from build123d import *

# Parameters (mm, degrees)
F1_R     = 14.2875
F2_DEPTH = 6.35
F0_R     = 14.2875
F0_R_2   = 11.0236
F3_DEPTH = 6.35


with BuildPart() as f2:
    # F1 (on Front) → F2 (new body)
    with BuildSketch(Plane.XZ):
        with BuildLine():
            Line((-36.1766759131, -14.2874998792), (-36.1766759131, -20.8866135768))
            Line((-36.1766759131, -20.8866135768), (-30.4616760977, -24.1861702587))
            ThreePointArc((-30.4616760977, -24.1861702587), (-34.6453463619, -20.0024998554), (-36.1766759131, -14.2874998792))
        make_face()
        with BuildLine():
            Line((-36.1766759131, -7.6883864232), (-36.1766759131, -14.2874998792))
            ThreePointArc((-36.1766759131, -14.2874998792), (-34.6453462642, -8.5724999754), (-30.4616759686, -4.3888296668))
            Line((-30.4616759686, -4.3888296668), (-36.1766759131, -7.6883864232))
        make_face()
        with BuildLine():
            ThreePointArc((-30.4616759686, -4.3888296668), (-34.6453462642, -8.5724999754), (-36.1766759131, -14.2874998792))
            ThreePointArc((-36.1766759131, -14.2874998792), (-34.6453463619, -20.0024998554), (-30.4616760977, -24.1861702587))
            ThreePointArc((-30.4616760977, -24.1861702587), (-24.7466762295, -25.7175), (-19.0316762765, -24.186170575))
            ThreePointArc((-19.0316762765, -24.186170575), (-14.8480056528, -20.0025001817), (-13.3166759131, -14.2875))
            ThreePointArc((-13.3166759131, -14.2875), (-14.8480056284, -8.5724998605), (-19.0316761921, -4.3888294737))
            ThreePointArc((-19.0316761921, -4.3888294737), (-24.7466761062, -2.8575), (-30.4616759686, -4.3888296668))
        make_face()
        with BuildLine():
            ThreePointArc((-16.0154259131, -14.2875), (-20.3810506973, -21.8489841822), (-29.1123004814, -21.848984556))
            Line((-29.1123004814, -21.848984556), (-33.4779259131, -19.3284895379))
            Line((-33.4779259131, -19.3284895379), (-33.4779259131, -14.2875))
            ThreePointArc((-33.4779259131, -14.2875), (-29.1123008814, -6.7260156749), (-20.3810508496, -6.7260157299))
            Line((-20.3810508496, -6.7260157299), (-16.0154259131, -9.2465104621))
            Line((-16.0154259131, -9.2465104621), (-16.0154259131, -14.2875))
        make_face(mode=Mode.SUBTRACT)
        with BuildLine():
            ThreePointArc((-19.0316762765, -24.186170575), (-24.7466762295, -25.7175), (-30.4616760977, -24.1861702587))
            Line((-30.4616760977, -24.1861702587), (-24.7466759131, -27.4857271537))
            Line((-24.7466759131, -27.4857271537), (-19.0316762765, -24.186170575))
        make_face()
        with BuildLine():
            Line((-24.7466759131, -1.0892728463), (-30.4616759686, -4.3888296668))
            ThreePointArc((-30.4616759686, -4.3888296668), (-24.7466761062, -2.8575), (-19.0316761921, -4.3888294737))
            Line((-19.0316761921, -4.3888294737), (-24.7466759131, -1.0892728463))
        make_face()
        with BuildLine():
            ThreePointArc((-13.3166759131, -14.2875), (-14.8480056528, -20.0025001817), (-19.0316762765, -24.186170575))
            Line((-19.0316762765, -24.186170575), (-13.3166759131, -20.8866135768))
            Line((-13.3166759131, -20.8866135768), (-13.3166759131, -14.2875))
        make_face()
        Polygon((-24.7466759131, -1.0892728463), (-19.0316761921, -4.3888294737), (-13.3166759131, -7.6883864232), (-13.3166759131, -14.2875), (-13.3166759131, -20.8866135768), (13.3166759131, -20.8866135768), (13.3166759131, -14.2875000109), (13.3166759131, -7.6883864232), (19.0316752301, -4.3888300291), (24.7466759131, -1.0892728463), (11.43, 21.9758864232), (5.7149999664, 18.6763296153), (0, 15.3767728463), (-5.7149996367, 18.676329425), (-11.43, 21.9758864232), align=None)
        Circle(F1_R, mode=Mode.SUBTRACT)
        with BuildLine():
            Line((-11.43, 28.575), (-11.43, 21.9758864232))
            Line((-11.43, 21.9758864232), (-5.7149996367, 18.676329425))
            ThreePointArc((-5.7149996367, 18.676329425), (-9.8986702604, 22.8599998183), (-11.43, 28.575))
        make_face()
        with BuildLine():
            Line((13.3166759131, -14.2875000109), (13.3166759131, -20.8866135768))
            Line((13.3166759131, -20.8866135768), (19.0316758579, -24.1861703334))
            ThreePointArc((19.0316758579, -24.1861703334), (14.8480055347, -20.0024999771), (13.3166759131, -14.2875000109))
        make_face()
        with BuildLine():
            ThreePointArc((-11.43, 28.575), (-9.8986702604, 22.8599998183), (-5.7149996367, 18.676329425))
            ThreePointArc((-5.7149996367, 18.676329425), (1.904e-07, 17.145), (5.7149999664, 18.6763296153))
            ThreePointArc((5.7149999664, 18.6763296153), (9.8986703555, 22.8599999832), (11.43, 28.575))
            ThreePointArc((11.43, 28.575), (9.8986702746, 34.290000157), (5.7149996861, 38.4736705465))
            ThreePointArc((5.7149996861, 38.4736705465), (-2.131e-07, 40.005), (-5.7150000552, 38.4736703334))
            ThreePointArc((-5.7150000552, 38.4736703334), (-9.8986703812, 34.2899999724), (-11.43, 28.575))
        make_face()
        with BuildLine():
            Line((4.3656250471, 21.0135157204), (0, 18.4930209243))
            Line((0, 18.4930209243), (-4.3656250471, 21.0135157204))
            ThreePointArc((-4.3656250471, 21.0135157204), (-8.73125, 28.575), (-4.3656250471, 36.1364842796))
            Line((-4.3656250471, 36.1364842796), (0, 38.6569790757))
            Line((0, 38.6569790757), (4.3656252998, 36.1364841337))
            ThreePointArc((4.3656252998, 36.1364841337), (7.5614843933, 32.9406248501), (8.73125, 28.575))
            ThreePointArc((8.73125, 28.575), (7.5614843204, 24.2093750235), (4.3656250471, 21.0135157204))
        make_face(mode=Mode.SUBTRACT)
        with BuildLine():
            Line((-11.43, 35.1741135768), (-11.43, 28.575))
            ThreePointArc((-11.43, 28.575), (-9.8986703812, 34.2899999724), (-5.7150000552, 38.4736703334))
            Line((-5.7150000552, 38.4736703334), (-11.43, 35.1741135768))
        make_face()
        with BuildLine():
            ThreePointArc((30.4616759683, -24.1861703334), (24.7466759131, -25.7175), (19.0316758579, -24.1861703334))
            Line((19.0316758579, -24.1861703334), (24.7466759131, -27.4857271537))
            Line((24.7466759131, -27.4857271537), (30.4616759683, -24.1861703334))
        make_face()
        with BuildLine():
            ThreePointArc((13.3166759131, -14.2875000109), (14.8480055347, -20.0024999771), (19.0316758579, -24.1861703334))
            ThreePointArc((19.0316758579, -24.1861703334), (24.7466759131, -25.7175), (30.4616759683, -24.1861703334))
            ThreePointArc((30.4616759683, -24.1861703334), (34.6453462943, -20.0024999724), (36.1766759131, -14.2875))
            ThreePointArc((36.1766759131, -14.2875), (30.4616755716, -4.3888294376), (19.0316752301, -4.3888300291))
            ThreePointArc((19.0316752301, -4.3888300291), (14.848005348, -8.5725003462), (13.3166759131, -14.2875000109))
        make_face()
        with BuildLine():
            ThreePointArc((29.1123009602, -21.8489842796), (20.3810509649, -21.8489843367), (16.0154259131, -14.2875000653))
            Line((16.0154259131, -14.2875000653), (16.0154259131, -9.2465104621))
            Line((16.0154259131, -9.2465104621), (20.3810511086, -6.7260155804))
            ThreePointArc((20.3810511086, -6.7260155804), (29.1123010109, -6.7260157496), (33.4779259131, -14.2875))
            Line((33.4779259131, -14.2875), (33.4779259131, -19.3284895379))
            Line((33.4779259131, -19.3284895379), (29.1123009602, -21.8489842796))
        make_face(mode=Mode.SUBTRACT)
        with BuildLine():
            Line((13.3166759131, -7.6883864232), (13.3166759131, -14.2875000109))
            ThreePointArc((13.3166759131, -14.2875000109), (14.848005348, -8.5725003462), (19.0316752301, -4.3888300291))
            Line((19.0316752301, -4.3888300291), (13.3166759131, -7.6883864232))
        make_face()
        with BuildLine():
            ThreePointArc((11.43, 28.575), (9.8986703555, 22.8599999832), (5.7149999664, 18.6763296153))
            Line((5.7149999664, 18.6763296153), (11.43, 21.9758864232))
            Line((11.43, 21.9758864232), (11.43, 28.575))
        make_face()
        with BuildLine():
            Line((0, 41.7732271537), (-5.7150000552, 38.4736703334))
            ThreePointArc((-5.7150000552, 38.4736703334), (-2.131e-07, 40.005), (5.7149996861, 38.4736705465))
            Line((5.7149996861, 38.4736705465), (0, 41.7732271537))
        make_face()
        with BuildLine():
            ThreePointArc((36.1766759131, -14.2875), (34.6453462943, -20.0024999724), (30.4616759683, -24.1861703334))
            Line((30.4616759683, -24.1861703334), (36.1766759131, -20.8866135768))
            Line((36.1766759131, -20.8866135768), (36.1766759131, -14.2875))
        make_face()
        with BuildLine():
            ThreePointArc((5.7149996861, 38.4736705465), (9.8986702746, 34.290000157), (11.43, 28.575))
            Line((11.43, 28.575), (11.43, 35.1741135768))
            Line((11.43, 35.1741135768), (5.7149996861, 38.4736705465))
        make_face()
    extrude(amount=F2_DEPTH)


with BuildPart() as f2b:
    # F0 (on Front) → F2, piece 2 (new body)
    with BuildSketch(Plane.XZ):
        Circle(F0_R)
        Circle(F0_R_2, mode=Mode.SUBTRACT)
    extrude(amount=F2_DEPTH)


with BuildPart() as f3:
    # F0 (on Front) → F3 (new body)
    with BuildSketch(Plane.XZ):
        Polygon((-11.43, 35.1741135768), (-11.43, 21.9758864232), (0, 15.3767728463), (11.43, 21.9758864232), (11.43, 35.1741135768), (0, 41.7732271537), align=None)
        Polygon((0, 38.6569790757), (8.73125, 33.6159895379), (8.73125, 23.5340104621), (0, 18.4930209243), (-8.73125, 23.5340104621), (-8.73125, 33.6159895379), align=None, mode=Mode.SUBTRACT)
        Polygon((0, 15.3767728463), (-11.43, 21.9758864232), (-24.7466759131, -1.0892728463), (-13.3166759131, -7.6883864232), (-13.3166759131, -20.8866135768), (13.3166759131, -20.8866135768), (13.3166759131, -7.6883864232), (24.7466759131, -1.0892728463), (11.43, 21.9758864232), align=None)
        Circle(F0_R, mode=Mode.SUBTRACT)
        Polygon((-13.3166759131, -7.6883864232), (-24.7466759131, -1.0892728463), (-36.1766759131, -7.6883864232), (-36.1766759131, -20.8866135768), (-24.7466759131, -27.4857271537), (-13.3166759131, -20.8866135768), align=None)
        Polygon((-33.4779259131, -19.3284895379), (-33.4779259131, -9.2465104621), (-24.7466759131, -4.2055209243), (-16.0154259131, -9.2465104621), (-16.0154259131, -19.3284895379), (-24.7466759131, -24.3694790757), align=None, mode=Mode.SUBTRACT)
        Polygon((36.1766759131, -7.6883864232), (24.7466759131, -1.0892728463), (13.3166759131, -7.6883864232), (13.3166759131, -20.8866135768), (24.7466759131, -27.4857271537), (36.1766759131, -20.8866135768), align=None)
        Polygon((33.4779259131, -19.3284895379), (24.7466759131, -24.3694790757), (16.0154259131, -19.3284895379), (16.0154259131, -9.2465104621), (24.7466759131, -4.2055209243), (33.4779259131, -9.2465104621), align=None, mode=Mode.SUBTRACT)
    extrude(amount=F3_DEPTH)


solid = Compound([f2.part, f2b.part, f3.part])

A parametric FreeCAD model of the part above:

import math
import FreeCAD as App
import Part
import Sketcher
Q = App.Units.Quantity


def add_polygon(sketch, points):
    """Adds a closed chain of lines whose ends are joined by coincident constraints."""
    first, n = sketch.GeometryCount, len(points)
    for a, b in zip(points, points[1:] + points[:1]):
        sketch.addGeometry(Part.LineSegment(App.Vector(*a, 0), App.Vector(*b, 0)), False)
    for i in range(n):
        sketch.addConstraint(Sketcher.Constraint("Coincident", first + i, 2, first + (i + 1) % n, 1))

doc = App.newDocument("Part")
body = doc.addObject("PartDesign::Body", "Body")

# Sketch on XZ plane
sketch1 = body.newObject("Sketcher::SketchObject", "Sketch")
sketch1.AttachmentSupport = (doc.getObject("XZ_Plane"), [""])
sketch1.MapMode = "FlatFace"
sketch1.addGeometry([
    Part.LineSegment(App.Vector(24.746676, -1.089273, 0), App.Vector(11.43, 21.975886, 0)),  # 0
    Part.LineSegment(App.Vector(11.43, 21.975886, 0), App.Vector(11.43, 35.174114, 0)),  # 1
    Part.LineSegment(App.Vector(11.43, 35.174114, 0), App.Vector(5.715, 38.473671, 0)),  # 2
    Part.LineSegment(App.Vector(5.715, 38.473671, 0), App.Vector(0, 41.773227, 0)),  # 3
    Part.LineSegment(App.Vector(0, 41.773227, 0), App.Vector(-5.715, 38.47367, 0)),  # 4
    Part.LineSegment(App.Vector(-5.715, 38.47367, 0), App.Vector(-11.43, 35.174114, 0)),  # 5
    Part.LineSegment(App.Vector(-11.43, 35.174114, 0), App.Vector(-11.43, 21.975886, 0)),  # 6
    Part.LineSegment(App.Vector(-11.43, 21.975886, 0), App.Vector(-24.746676, -1.089273, 0)),  # 7
    Part.LineSegment(App.Vector(-24.746676, -1.089273, 0), App.Vector(-30.461676, -4.38883, 0)),  # 8
    Part.LineSegment(App.Vector(-30.461676, -4.38883, 0), App.Vector(-36.176676, -7.688386, 0)),  # 9
    Part.LineSegment(App.Vector(-36.176676, -7.688386, 0), App.Vector(-36.176676, -20.886614, 0)),  # 10
    Part.LineSegment(App.Vector(-36.176676, -20.886614, 0), App.Vector(-30.461676, -24.18617, 0)),  # 11
    Part.LineSegment(App.Vector(-30.461676, -24.18617, 0), App.Vector(-24.746676, -27.485727, 0)),  # 12
    Part.LineSegment(App.Vector(-24.746676, -27.485727, 0), App.Vector(-19.031676, -24.186171, 0)),  # 13
    Part.LineSegment(App.Vector(-19.031676, -24.186171, 0), App.Vector(-13.316676, -20.886614, 0)),  # 14
    Part.LineSegment(App.Vector(-13.316676, -20.886614, 0), App.Vector(13.316676, -20.886614, 0)),  # 15
    Part.LineSegment(App.Vector(13.316676, -20.886614, 0), App.Vector(19.031676, -24.18617, 0)),  # 16
    Part.LineSegment(App.Vector(19.031676, -24.18617, 0), App.Vector(24.746676, -27.485727, 0)),  # 17
    Part.LineSegment(App.Vector(24.746676, -27.485727, 0), App.Vector(30.461676, -24.18617, 0)),  # 18
    Part.LineSegment(App.Vector(30.461676, -24.18617, 0), App.Vector(36.176676, -20.886614, 0)),  # 19
    Part.LineSegment(App.Vector(36.176676, -20.886614, 0), App.Vector(36.176676, -14.2875, 0)),  # 20
    Part.ArcOfCircle(Part.Circle(App.Vector(24.746676, -14.2875, 0), App.Vector(0, 0, 1), 11.43), math.radians(0), math.radians(120.000004)),  # 21
    Part.LineSegment(App.Vector(19.031675, -4.38883, 0), App.Vector(24.746676, -1.089273, 0)),  # 22
    Part.LineSegment(App.Vector(-16.015426, -9.24651, 0), App.Vector(-16.015426, -14.2875, 0)),  # 23
    Part.ArcOfCircle(Part.Circle(App.Vector(-24.746676, -14.2875, 0), App.Vector(0, 0, 1), 8.73125), math.radians(-119.999997), math.radians(0)),  # 24
    Part.LineSegment(App.Vector(-29.1123, -21.848985, 0), App.Vector(-33.477926, -19.32849, 0)),  # 25
    Part.LineSegment(App.Vector(-33.477926, -19.32849, 0), App.Vector(-33.477926, -14.2875, 0)),  # 26
    Part.ArcOfCircle(Part.Circle(App.Vector(-24.746676, -14.2875, 0), App.Vector(0, 0, 1), 8.73125), math.radians(60), math.radians(180)),  # 27
    Part.LineSegment(App.Vector(-20.381051, -6.726016, 0), App.Vector(-16.015426, -9.24651, 0)),  # 28
    Part.ArcOfCircle(Part.Circle(App.Vector(-24.746676, -14.2875, 0), App.Vector(0, 0, 1), 11.43), math.radians(0), math.radians(60.000002)),  # 29
    Part.LineSegment(App.Vector(-19.031676, -4.388829, 0), App.Vector(-13.316676, -7.688386, 0)),  # 30
    Part.LineSegment(App.Vector(-13.316676, -7.688386, 0), App.Vector(-13.316676, -14.2875, 0)),  # 31
    Part.Circle(App.Vector(0, 0, 0), App.Vector(0, 0, 1), 14.2875),  # 32
    Part.LineSegment(App.Vector(33.477926, -19.32849, 0), App.Vector(29.112301, -21.848984, 0)),  # 33
    Part.ArcOfCircle(Part.Circle(App.Vector(24.746676, -14.2875, 0), App.Vector(0, 0, 1), 8.73125), math.radians(-180), math.radians(-60)),  # 34
    Part.LineSegment(App.Vector(16.015426, -14.2875, 0), App.Vector(16.015426, -9.24651, 0)),  # 35
    Part.LineSegment(App.Vector(16.015426, -9.24651, 0), App.Vector(20.381051, -6.726016, 0)),  # 36
    Part.ArcOfCircle(Part.Circle(App.Vector(24.746676, -14.2875, 0), App.Vector(0, 0, 1), 8.73125), math.radians(0), math.radians(119.999999)),  # 37
    Part.LineSegment(App.Vector(33.477926, -14.2875, 0), App.Vector(33.477926, -19.32849, 0)),  # 38
    Part.ArcOfCircle(Part.Circle(App.Vector(0, 28.575, 0), App.Vector(0, 0, 1), 8.73125), math.radians(-60), math.radians(59.999998)),  # 39
    Part.LineSegment(App.Vector(4.365625, 21.013516, 0), App.Vector(0, 18.493021, 0)),  # 40
    Part.LineSegment(App.Vector(0, 18.493021, 0), App.Vector(-4.365625, 21.013516, 0)),  # 41
    Part.ArcOfCircle(Part.Circle(App.Vector(0, 28.575, 0), App.Vector(0, 0, 1), 8.73125), math.radians(120), math.radians(240)),  # 42
    Part.LineSegment(App.Vector(-4.365625, 36.136484, 0), App.Vector(0, 38.656979, 0)),  # 43
    Part.LineSegment(App.Vector(0, 38.656979, 0), App.Vector(4.365625, 36.136484, 0)),  # 44
    Part.ArcOfCircle(Part.Circle(App.Vector(0, 28.575, 0), App.Vector(0, 0, 1), 11.43), math.radians(-119.999998), math.radians(-60)),  # 45
    Part.LineSegment(App.Vector(5.715, 18.67633, 0), App.Vector(0, 15.376773, 0)),  # 46
    Part.LineSegment(App.Vector(0, 15.376773, 0), App.Vector(-5.715, 18.676329, 0)),  # 47
], False)
sketch1.addConstraint([
    Sketcher.Constraint("Coincident", 0, 2, 1, 1),
    Sketcher.Constraint("Coincident", 1, 2, 2, 1),
    Sketcher.Constraint("Coincident", 2, 2, 3, 1),
    Sketcher.Constraint("Coincident", 3, 2, 4, 1),
    Sketcher.Constraint("Coincident", 4, 2, 5, 1),
    Sketcher.Constraint("Coincident", 5, 2, 6, 1),
    Sketcher.Constraint("Coincident", 6, 2, 7, 1),
    Sketcher.Constraint("Coincident", 7, 2, 8, 1),
    Sketcher.Constraint("Coincident", 8, 2, 9, 1),
    Sketcher.Constraint("Coincident", 9, 2, 10, 1),
    Sketcher.Constraint("Coincident", 10, 2, 11, 1),
    Sketcher.Constraint("Coincident", 11, 2, 12, 1),
    Sketcher.Constraint("Coincident", 12, 2, 13, 1),
    Sketcher.Constraint("Coincident", 13, 2, 14, 1),
    Sketcher.Constraint("Coincident", 14, 2, 15, 1),
    Sketcher.Constraint("Coincident", 15, 2, 16, 1),
    Sketcher.Constraint("Coincident", 16, 2, 17, 1),
    Sketcher.Constraint("Coincident", 17, 2, 18, 1),
    Sketcher.Constraint("Coincident", 18, 2, 19, 1),
    Sketcher.Constraint("Coincident", 19, 2, 20, 1),
    Sketcher.Constraint("Tangent", 20, 2, 21, 1),
    Sketcher.Constraint("Tangent", 21, 2, 22, 1),
    Sketcher.Constraint("Coincident", 22, 2, 0, 1),
    Sketcher.Constraint("Tangent", 23, 2, 24, 2),
    Sketcher.Constraint("Tangent", 24, 1, 25, 1),
    Sketcher.Constraint("Coincident", 25, 2, 26, 1),
    Sketcher.Constraint("Tangent", 26, 2, 27, 2),
    Sketcher.Constraint("Tangent", 27, 1, 28, 1),
    Sketcher.Constraint("Coincident", 28, 2, 23, 1),
    Sketcher.Constraint("Tangent", 29, 2, 30, 1),
    Sketcher.Constraint("Coincident", 30, 2, 31, 1),
    Sketcher.Constraint("Tangent", 31, 2, 29, 1),
    Sketcher.Constraint("Tangent", 33, 2, 34, 2),
    Sketcher.Constraint("Tangent", 34, 1, 35, 1),
    Sketcher.Constraint("Coincident", 35, 2, 36, 1),
    Sketcher.Constraint("Tangent", 36, 2, 37, 2),
    Sketcher.Constraint("Tangent", 37, 1, 38, 1),
    Sketcher.Constraint("Coincident", 38, 2, 33, 1),
    Sketcher.Constraint("Tangent", 39, 1, 40, 1),
    Sketcher.Constraint("Coincident", 40, 2, 41, 1),
    Sketcher.Constraint("Tangent", 41, 2, 42, 2),
    Sketcher.Constraint("Tangent", 42, 1, 43, 1),
    Sketcher.Constraint("Coincident", 43, 2, 44, 1),
    Sketcher.Constraint("Tangent", 44, 2, 39, 2),
    Sketcher.Constraint("Tangent", 45, 2, 46, 1),
    Sketcher.Constraint("Coincident", 46, 2, 47, 1),
    Sketcher.Constraint("Tangent", 47, 2, 45, 1),
    Sketcher.Constraint("Vertical", 1),
    Sketcher.Constraint("Vertical", 6),
    Sketcher.Constraint("Vertical", 10),
    Sketcher.Constraint("Horizontal", 15),
    Sketcher.Constraint("Vertical", 20),
    Sketcher.Constraint("Vertical", 23),
    Sketcher.Constraint("Vertical", 26),
    Sketcher.Constraint("Vertical", 31),
    Sketcher.Constraint("Vertical", 35),
    Sketcher.Constraint("Vertical", 38),
    Sketcher.Constraint("Coincident", 32, 3, -1, 1),
    Sketcher.Constraint("Coincident", 27, 3, 24, 3),
    Sketcher.Constraint("Coincident", 29, 3, 24, 3),
    Sketcher.Constraint("Coincident", 34, 3, 21, 3),
    Sketcher.Constraint("Coincident", 37, 3, 21, 3),
    Sketcher.Constraint("Coincident", 42, 3, 39, 3),
    Sketcher.Constraint("Coincident", 45, 3, 39, 3),
    Sketcher.Constraint("Equal", 24, 27),
    Sketcher.Constraint("Equal", 21, 29),
    Sketcher.Constraint("Equal", 27, 34),
    Sketcher.Constraint("Equal", 34, 37),
    Sketcher.Constraint("Equal", 37, 39),
    Sketcher.Constraint("Equal", 39, 42),
    Sketcher.Constraint("Equal", 29, 45),
    Sketcher.Constraint("Symmetric", 21, 3, 24, 3, -2),
    Sketcher.Constraint("Symmetric", 2, 2, 4, 2, -2),
    Sketcher.Constraint("Symmetric", 1, 2, 5, 2, -2),
    Sketcher.Constraint("Symmetric", 13, 2, 16, 2, -2),
    Sketcher.Constraint("Symmetric", 12, 2, 17, 2, -2),
    Sketcher.Constraint("Symmetric", 11, 2, 18, 2, -2),
    Sketcher.Constraint("Symmetric", 10, 2, 19, 2, -2),
    Sketcher.Constraint("Symmetric", 7, 2, 22, 2, -2),
    Sketcher.Constraint("Symmetric", 39, 1, 41, 2, -2),
    Sketcher.Constraint("PointOnObject", 3, 2, -2),
    Sketcher.Constraint("PointOnObject", 43, 2, -2),
    Sketcher.Constraint("PointOnObject", 46, 2, -2),
    Sketcher.Constraint("Parallel", 2, 3),
    Sketcher.Constraint("Perpendicular", 0, 4),
    Sketcher.Constraint("Perpendicular", 3, 7),
    Sketcher.Constraint("Parallel", 5, 8),
    Sketcher.Constraint("Parallel", 8, 9),
    Sketcher.Constraint("Perpendicular", 7, 11),
    Sketcher.Constraint("Parallel", 11, 12),
    Sketcher.Constraint("Parallel", 9, 13),
    Sketcher.Constraint("Parallel", 13, 14),
    Sketcher.Constraint("Parallel", 12, 16),
    Sketcher.Constraint("Parallel", 19, 22),
    Sketcher.Constraint("Parallel", 17, 25),
    Sketcher.Constraint("Parallel", 25, 28),
    Sketcher.Constraint("Parallel", 28, 30),
    Sketcher.Constraint("Parallel", 22, 33),
    Sketcher.Constraint("Parallel", 33, 36),
    Sketcher.Constraint("Parallel", 36, 40),
    Sketcher.Constraint("Parallel", 40, 43),
    Sketcher.Constraint("Parallel", 43, 46),
    Sketcher.Constraint("Horizontal", 11, 2, 13, 2),
    Sketcher.Constraint("Horizontal", 10, 2, 14, 2),
    Sketcher.Constraint("Horizontal", 8, 2, 21, 2),
    Sketcher.Constraint("Horizontal", 9, 2, 30, 2),
    Sketcher.Constraint("Vertical", 8, 2, 11, 2),
    Sketcher.Constraint("Vertical", 7, 2, 12, 2),
    Sketcher.Constraint("Vertical", 2, 2, 45, 2),
    Sketcher.Constraint("Equal", 6, 10),
    Sketcher.Constraint("Equal", 20, 31),
    Sketcher.Constraint("Equal", 2, 3),
    Sketcher.Constraint("Equal", 8, 9),
    Sketcher.Constraint("Radius", 21, Q("0.45 in")),
    Sketcher.Constraint("Diameter", 32, Q("1.125 in")),
    Sketcher.Constraint("Radius", 24, Q("0.34375 in")),
    Sketcher.Constraint("DistanceY", 21, 3, -1, 1, Q("0.5625 in")),
    Sketcher.Constraint("DistanceY", -1, 1, 39, 3, Q("1.125 in")),
    Sketcher.Constraint("DistanceX", 15, 1, 15, 2, Q("26.633352 mm")),
])
pad1 = body.newObject("PartDesign::Pad", "Pad")
pad1.Profile = sketch1
pad1.Length = Q("0.25 in")
body2 = doc.addObject("PartDesign::Body", "Body001")

# Sketch on XZ plane
sketch2 = body2.newObject("Sketcher::SketchObject", "Sketch001")
sketch2.AttachmentSupport = (doc.getObject("XZ_Plane001"), [""])
sketch2.MapMode = "FlatFace"
sketch2.addGeometry([
    Part.Circle(App.Vector(0, 0, 0), App.Vector(0, 0, 1), 14.2875),
    Part.Circle(App.Vector(0, 0, 0), App.Vector(0, 0, 1), 11.0236),
], False)
sketch2.addConstraint([
    Sketcher.Constraint("Coincident", 0, 3, -1, 1),
    Sketcher.Constraint("Coincident", 1, 3, -1, 1),
    Sketcher.Constraint("Diameter", 0, Q("1.125 in")),
    Sketcher.Constraint("Diameter", 1, Q("0.868 in")),
])
pad2 = body2.newObject("PartDesign::Pad", "Pad001")
pad2.Profile = sketch2
pad2.Length = Q("0.25 in")
body3 = doc.addObject("PartDesign::Body", "Body002")

# Sketch on XZ plane
sketch3 = body3.newObject("Sketcher::SketchObject", "Sketch002")
sketch3.AttachmentSupport = (doc.getObject("XZ_Plane002"), [""])
sketch3.MapMode = "FlatFace"
add_polygon(sketch3, [(-11.43, 35.174114), (-11.43, 21.975886), (-24.746676, -1.089273), (-36.176676, -7.688386), (-36.176676, -20.886614), (-24.746676, -27.485727), (-13.316676, -20.886614), (13.316676, -20.886614), (24.746676, -27.485727), (36.176676, -20.886614), (36.176676, -7.688386), (24.746676, -1.089273), (11.43, 21.975886), (11.43, 35.174114), (0, 41.773227)])  # lines 0-14
add_polygon(sketch3, [(-24.746676, -24.369479), (-33.477926, -19.32849), (-33.477926, -9.24651), (-24.746676, -4.205521), (-16.015426, -9.24651), (-16.015426, -19.32849)])  # lines 15-20
add_polygon(sketch3, [(33.477926, -9.24651), (33.477926, -19.32849), (24.746676, -24.369479), (16.015426, -19.32849), (16.015426, -9.24651), (24.746676, -4.205521)])  # lines 21-26
sketch3.addGeometry(Part.Circle(App.Vector(0, 0, 0), App.Vector(0, 0, 1), 14.2875), False)  # 27
add_polygon(sketch3, [(-8.73125, 33.61599), (0, 38.656979), (8.73125, 33.61599), (8.73125, 23.53401), (0, 18.493021), (-8.73125, 23.53401)])  # lines 28-33
sketch3.addConstraint([
    Sketcher.Constraint("Vertical", 0),
    Sketcher.Constraint("Vertical", 3),
    Sketcher.Constraint("Horizontal", 6),
    Sketcher.Constraint("Vertical", 9),
    Sketcher.Constraint("Vertical", 12),
    Sketcher.Constraint("Vertical", 16),
    Sketcher.Constraint("Vertical", 19),
    Sketcher.Constraint("Vertical", 21),
    Sketcher.Constraint("Vertical", 24),
    Sketcher.Constraint("Vertical", 30),
    Sketcher.Constraint("Vertical", 33),
    Sketcher.Constraint("Coincident", 27, 3, -1, 1),
    Sketcher.Constraint("Symmetric", 4, 2, 7, 2, -2),
    Sketcher.Constraint("Symmetric", 3, 2, 8, 2, -2),
    Sketcher.Constraint("Symmetric", 1, 2, 10, 2, -2),
    Sketcher.Constraint("Symmetric", 0, 2, 11, 2, -2),
    Sketcher.Constraint("Symmetric", 15, 2, 21, 2, -2),
    Sketcher.Constraint("Symmetric", 20, 2, 22, 2, -2),
    Sketcher.Constraint("Symmetric", 19, 2, 23, 2, -2),
    Sketcher.Constraint("Symmetric", 17, 2, 25, 2, -2),
    Sketcher.Constraint("Symmetric", 30, 2, 32, 2, -2),
    Sketcher.Constraint("PointOnObject", 13, 2, -2),
    Sketcher.Constraint("PointOnObject", 28, 2, -2),
    Sketcher.Constraint("PointOnObject", 31, 2, -2),
    Sketcher.Constraint("Perpendicular", 1, 4),
    Sketcher.Constraint("Parallel", 2, 5),
    Sketcher.Constraint("Parallel", 4, 7),
    Sketcher.Constraint("Parallel", 5, 8),
    Sketcher.Constraint("Parallel", 7, 10),
    Sketcher.Constraint("Parallel", 10, 13),
    Sketcher.Constraint("Perpendicular", 11, 14),
    Sketcher.Constraint("Parallel", 13, 15),
    Sketcher.Constraint("Parallel", 14, 17),
    Sketcher.Constraint("Parallel", 15, 18),
    Sketcher.Constraint("Parallel", 17, 20),
    Sketcher.Constraint("Parallel", 22, 25),
    Sketcher.Constraint("Parallel", 23, 26),
    Sketcher.Constraint("Parallel", 25, 28),
    Sketcher.Constraint("Parallel", 26, 29),
    Sketcher.Constraint("Parallel", 28, 31),
    Sketcher.Constraint("Horizontal", 3, 2, 5, 2),
    Sketcher.Constraint("Horizontal", 16, 2, 18, 2),
    Sketcher.Constraint("Horizontal", 15, 2, 19, 2),
    Sketcher.Constraint("Vertical", 1, 2, 4, 2),
    Sketcher.Constraint("Vertical", 4, 2, 17, 2),
    Sketcher.Constraint("Equal", 0, 3),
    Sketcher.Constraint("Equal", 24, 30),
    Sketcher.Constraint("Equal", 10, 13),
    Sketcher.Constraint("Equal", 26, 28),
    Sketcher.Constraint("Diameter", 27, Q("1.125 in")),
    Sketcher.Constraint("Angle", 1, Q("-120 deg")),
    Sketcher.Constraint("DistanceX", 3, 2, 5, 2, Q("0.9 in")),
    Sketcher.Constraint("DistanceX", -1, 1, 29, 2, Q("0.34375 in")),
    Sketcher.Constraint("DistanceY", 3, 2, 0, 2, Q("1.6875 in")),
    Sketcher.Constraint("DistanceX", 6, 1, 6, 2, Q("26.633352 mm")),
    Sketcher.Constraint("DistanceY", 16, 1, 16, 2, Q("10.081979 mm")),
    Sketcher.Constraint("DistanceY", 15, 2, -1, 1, Q("19.32849 mm")),
    Sketcher.Constraint("DistanceY", -1, 1, 28, 2, Q("38.656979 mm")),
    Sketcher.Constraint("DistanceY", 17, 2, 1, 2, Q("3.116248 mm")),
])
pad3 = body3.newObject("PartDesign::Pad", "Pad002")
pad3.Profile = sketch3
pad3.Length = Q("0.25 in")

doc.recompute()
